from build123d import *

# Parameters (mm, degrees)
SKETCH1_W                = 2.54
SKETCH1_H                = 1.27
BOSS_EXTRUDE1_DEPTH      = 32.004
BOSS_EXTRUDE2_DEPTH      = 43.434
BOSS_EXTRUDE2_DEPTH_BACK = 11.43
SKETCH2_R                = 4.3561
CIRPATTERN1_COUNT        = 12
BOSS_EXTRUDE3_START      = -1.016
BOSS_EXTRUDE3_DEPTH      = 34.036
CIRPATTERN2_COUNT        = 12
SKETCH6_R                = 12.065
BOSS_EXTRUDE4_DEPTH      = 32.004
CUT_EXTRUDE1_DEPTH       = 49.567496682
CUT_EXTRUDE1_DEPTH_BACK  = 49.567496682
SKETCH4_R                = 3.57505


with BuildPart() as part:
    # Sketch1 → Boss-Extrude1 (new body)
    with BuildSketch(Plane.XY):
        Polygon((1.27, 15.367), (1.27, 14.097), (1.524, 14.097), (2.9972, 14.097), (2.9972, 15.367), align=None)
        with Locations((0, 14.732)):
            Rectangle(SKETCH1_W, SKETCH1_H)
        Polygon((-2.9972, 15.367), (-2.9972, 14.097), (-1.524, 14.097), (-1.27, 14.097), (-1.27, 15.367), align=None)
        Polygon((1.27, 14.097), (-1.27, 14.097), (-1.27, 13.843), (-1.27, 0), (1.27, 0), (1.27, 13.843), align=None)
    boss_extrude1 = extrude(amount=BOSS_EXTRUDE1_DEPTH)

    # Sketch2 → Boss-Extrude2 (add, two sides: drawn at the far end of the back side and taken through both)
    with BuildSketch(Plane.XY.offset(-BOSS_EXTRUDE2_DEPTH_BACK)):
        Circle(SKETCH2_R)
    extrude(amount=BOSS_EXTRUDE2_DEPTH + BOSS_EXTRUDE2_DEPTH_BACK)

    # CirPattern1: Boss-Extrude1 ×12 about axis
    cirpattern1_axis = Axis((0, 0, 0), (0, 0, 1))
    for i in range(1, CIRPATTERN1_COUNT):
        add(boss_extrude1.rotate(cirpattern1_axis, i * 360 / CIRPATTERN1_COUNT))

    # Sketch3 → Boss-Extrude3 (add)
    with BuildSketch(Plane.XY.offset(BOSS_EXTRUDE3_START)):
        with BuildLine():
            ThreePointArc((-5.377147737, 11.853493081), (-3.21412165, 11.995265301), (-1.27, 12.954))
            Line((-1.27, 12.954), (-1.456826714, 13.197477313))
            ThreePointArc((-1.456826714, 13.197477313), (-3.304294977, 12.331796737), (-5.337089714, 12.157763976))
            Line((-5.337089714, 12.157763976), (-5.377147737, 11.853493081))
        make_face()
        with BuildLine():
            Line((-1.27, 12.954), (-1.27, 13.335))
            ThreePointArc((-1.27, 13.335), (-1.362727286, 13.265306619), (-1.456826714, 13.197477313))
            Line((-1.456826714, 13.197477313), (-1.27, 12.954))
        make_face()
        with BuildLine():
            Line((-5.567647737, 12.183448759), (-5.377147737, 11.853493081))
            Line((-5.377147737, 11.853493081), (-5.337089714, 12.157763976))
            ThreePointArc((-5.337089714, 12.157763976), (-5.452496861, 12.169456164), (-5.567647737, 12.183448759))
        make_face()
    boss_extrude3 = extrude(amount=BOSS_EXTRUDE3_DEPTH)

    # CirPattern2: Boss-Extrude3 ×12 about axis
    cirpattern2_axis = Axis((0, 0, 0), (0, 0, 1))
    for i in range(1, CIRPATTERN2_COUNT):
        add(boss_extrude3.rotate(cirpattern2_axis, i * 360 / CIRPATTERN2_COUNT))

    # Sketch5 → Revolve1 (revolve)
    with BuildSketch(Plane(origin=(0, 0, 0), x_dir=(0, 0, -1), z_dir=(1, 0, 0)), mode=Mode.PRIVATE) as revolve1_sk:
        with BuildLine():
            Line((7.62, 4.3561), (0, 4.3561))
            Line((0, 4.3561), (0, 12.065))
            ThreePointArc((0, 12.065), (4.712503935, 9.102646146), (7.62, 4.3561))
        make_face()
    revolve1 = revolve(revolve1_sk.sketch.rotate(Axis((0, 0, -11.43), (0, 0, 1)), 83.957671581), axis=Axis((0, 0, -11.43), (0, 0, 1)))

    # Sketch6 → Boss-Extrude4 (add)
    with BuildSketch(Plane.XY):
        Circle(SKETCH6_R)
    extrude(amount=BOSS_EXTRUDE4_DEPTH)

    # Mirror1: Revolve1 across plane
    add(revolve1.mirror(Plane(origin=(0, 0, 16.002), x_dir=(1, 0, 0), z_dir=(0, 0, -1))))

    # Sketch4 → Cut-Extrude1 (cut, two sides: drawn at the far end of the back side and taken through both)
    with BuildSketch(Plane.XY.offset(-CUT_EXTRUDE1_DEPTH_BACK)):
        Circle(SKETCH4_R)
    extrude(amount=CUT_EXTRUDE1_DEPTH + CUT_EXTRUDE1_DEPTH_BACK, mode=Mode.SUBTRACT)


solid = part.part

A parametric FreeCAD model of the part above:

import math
import FreeCAD as App
import Part
import Sketcher
from FreeCAD import Vector
Q = App.Units.Quantity

doc = App.newDocument("Part")
body = doc.addObject("PartDesign::Body", "Body")

# Sketch on XY plane
sketch1 = body.newObject("Sketcher::SketchObject", "Sketch")
sketch1.AttachmentSupport = (doc.getObject("XY_Plane"), [""])
sketch1.MapMode = "FlatFace"
sketch1.addGeometry([
    Part.LineSegment(Vector(3, 14.1, 0), Vector(3, 15.4, 0)),  # 0
    Part.LineSegment(Vector(3, 15.4, 0), Vector(-3, 15.4, 0)),  # 1
    Part.LineSegment(Vector(-3, 15.4, 0), Vector(-3, 14.1, 0)),  # 2
    Part.LineSegment(Vector(-3, 14.1, 0), Vector(-1.3, 14.1, 0)),  # 3
    Part.LineSegment(Vector(-1.3, 14.1, 0), Vector(-1.3, 0, 0)),  # 4
    Part.LineSegment(Vector(-1.3, 0, 0), Vector(1.3, 0, 0)),  # 5
    Part.LineSegment(Vector(1.3, 0, 0), Vector(1.3, 14.1, 0)),  # 6
    Part.LineSegment(Vector(1.3, 14.1, 0), Vector(3, 14.1, 0)),  # 7
], False)
sketch1.addConstraint([
    Sketcher.Constraint("Coincident", 0, 2, 1, 1),
    Sketcher.Constraint("Coincident", 1, 2, 2, 1),
    Sketcher.Constraint("Coincident", 2, 2, 3, 1),
    Sketcher.Constraint("Coincident", 3, 2, 4, 1),
    Sketcher.Constraint("Coincident", 4, 2, 5, 1),
    Sketcher.Constraint("Coincident", 5, 2, 6, 1),
    Sketcher.Constraint("Coincident", 6, 2, 7, 1),
    Sketcher.Constraint("Coincident", 7, 2, 0, 1),
    Sketcher.Constraint("Vertical", 0),
    Sketcher.Constraint("Horizontal", 1),
    Sketcher.Constraint("Vertical", 2),
    Sketcher.Constraint("Horizontal", 3),
    Sketcher.Constraint("Vertical", 4),
    Sketcher.Constraint("Horizontal", 5),
    Sketcher.Constraint("Vertical", 6),
    Sketcher.Constraint("Horizontal", 7),
    Sketcher.Constraint("Symmetric", 4, 2, 5, 2, -1, 1),
    Sketcher.Constraint("Symmetric", 2, 2, 7, 2, -2),
    Sketcher.Constraint("DistanceX", 5, 1, 5, 2, Q("0.1 in")),
    Sketcher.Constraint("DistanceY", 0, 1, 0, 2, Q("0.05 in")),
    Sketcher.Constraint("DistanceX", 1, 2, 1, 1, Q("0.236 in")),
    Sketcher.Constraint("DistanceY", 4, 2, 4, 1, Q("0.555 in")),
])
pad1 = body.newObject("PartDesign::Pad", "Pad")
pad1.Profile = sketch1
pad1.Length = Q("1.26 in")

# Sketch on XY plane
sketch2 = body.newObject("Sketcher::SketchObject", "Sketch001")
sketch2.AttachmentSupport = (doc.getObject("XY_Plane"), [""])
sketch2.MapMode = "FlatFace"
sketch2.addGeometry(Part.Circle(Vector(0, 0, 0), Vector(0, 0, 1), 4.4), False)
sketch2.addConstraint([
    Sketcher.Constraint("Coincident", 0, 3, -1, 1),
    Sketcher.Constraint("Diameter", 0, Q("0.343 in")),
])
pad2 = body.newObject("PartDesign::Pad", "Pad001")
pad2.Profile = sketch2
pad2.Type = "TwoLengths"
pad2.Length = Q("1.71 in")
pad2.Length2 = Q("0.45 in")
doc.recompute()

polarpattern = body.newObject("PartDesign::PolarPattern", "PolarPattern")
polarpattern.Originals = [pad1]
polarpattern.Axis = (doc.getObject("Z_Axis"), [""])
polarpattern.Angle = 360
polarpattern.Occurrences = 12
body.Tip = polarpattern

# Sketch on XY plane
sketch3 = body.newObject("Sketcher::SketchObject", "Sketch002")
sketch3.AttachmentSupport = (doc.getObject("XY_Plane"), [""])
sketch3.MapMode = "FlatFace"
sketch3.AttachmentOffset = App.Placement(Vector(0, 0, -0.04 * 25.4), App.Rotation())
sketch3.addGeometry([
    Part.ArcOfCircle(Part.Circle(Vector(-4.65, 17.36, 0), Vector(0, 0, 1), 5.56), math.radians(-97), math.radians(-53)),  # 0
    Part.LineSegment(Vector(-1.27, 12.95, 0), Vector(-1.27, 13.34, 0)),  # 1
    Part.ArcOfCircle(Part.Circle(Vector(-4.81, 17.95, 0), Vector(0, 0, 1), 5.81), math.radians(-54.79), math.radians(-52.5)),  # 2
    Part.ArcOfCircle(Part.Circle(Vector(-4.81, 17.95, 0), Vector(0, 0, 1), 5.81), math.radians(-95), math.radians(-55)),  # 3
    Part.ArcOfCircle(Part.Circle(Vector(-4.81, 17.95, 0), Vector(0, 0, 1), 5.81), math.radians(-97.5), math.radians(-95.21)),  # 4
    Part.LineSegment(Vector(-5.57, 12.18, 0), Vector(-5.38, 11.85, 0)),  # 5
], False)
sketch3.addConstraint([
    Sketcher.Constraint("Coincident", 0, 2, 1, 1),
    Sketcher.Constraint("Coincident", 1, 2, 2, 2),
    Sketcher.Constraint("Tangent", 2, 1, 3, 2),
    Sketcher.Constraint("Tangent", 3, 1, 4, 2),
    Sketcher.Constraint("Coincident", 4, 1, 5, 1),
    Sketcher.Constraint("Coincident", 5, 2, 0, 1),
    Sketcher.Constraint("Vertical", 1),
    Sketcher.Constraint("Coincident", 4, 3, 2, 3),
    Sketcher.Constraint("Angle", 5, Q("-60 deg")),
    Sketcher.Constraint("DistanceY", 1, 1, 1, 2, Q("0.015 in")),
    Sketcher.Constraint("DistanceX", 0, 2, -1, 1, Q("0.05 in")),
    Sketcher.Constraint("DistanceY", -1, 1, 0, 2, Q("0.51 in")),
    Sketcher.Constraint("Distance", 5, Q("0.015 in")),
    Sketcher.Constraint("Radius", 3, Q("5.813228 mm")),
    Sketcher.Constraint("Radius", 0, Q("5.555548 mm")),
    Sketcher.Constraint("DistanceX", 2, 3, -1, 1, Q("4.808869 mm")),
    Sketcher.Constraint("DistanceX", 3, 1, -1, 1, Q("5.33709 mm")),
    Sketcher.Constraint("DistanceY", -1, 1, 4, 1, Q("12.183449 mm")),
    Sketcher.Constraint("DistanceX", 2, 3, 2, 1, Q("3.352042 mm")),
])
pad3 = body.newObject("PartDesign::Pad", "Pad002")
pad3.Profile = sketch3
pad3.Length = Q("1.34 in")
doc.recompute()

polarpattern2 = body.newObject("PartDesign::PolarPattern", "PolarPattern001")
polarpattern2.Originals = [pad3]
polarpattern2.Axis = (doc.getObject("Z_Axis"), [""])
polarpattern2.Angle = 360
polarpattern2.Occurrences = 12
body.Tip = polarpattern2

# Sketch on YZ plane
sketch4 = body.newObject("Sketcher::SketchObject", "Sketch003")
sketch4.AttachmentSupport = (doc.getObject("YZ_Plane"), [""])
sketch4.MapMode = "FlatFace"
sketch4.addGeometry([
    Part.LineSegment(Vector(4, 0, 0), Vector(4, -8, 0)),
    Part.ArcOfCircle(Part.Circle(Vector(1, 4, 0), Vector(0, 0, 1), 12), math.radians(-72), math.radians(-19)),
    Part.LineSegment(Vector(12, 0, 0), Vector(4, 0, 0)),
], False)
sketch4.addConstraint([
    Sketcher.Constraint("Coincident", 0, 2, 1, 1),
    Sketcher.Constraint("Coincident", 1, 2, 2, 1),
    Sketcher.Constraint("Coincident", 2, 2, 0, 1),
    Sketcher.Constraint("Vertical", 0),
    Sketcher.Constraint("Horizontal", 2),
    Sketcher.Constraint("PointOnObject", 1, 2, -1),
    Sketcher.Constraint("DistanceY", 0, 2, 0, 1, Q("0.3 in")),
    Sketcher.Constraint("DistanceX", 2, 2, 2, 1, Q("0.3035 in")),
    Sketcher.Constraint("DistanceX", -1, 1, 1, 2, Q("0.475 in")),
    Sketcher.Constraint("Radius", 1, Q("12.207782 mm")),
])
revolution = body.newObject("PartDesign::Revolution", "Revolution")
revolution.Profile = sketch4
revolution.ReferenceAxis = (sketch4, ["V_Axis"])
revolution.Angle = 360

# Sketch on XY plane
sketch5 = body.newObject("Sketcher::SketchObject", "Sketch004")
sketch5.AttachmentSupport = (doc.getObject("XY_Plane"), [""])
sketch5.MapMode = "FlatFace"
sketch5.addGeometry(Part.Circle(Vector(0, 0, 0), Vector(0, 0, 1), 12), False)
sketch5.addConstraint([
    Sketcher.Constraint("Coincident", 0, 3, -1, 1),
    Sketcher.Constraint("Diameter", 0, Q("0.95 in")),
])
pad4 = body.newObject("PartDesign::Pad", "Pad003")
pad4.Profile = sketch5
pad4.Length = Q("1.26 in")
doc.recompute()

datumplane = body.newObject("PartDesign::Plane", "DatumPlane")
datumplane.AttachmentSupport = (doc.getObject("XY_Plane"), [""])
datumplane.MapMode = "FlatFace"
datumplane.AttachmentOffset = App.Placement(Vector(0, 0, 0.63 * 25.4), App.Rotation())
mirrored = body.newObject("PartDesign::Mirrored", "Mirrored")
mirrored.Originals = [revolution]
mirrored.MirrorPlane = (datumplane, [""])
body.Tip = mirrored

# Sketch on XY plane
sketch6 = body.newObject("Sketcher::SketchObject", "Sketch005")
sketch6.AttachmentSupport = (doc.getObject("XY_Plane"), [""])
sketch6.MapMode = "FlatFace"
sketch6.addGeometry(Part.Circle(Vector(0, 0, 0), Vector(0, 0, 1), 3.6), False)
sketch6.addConstraint([
    Sketcher.Constraint("Coincident", 0, 3, -1, 1),
    Sketcher.Constraint("Diameter", 0, Q("0.2815 in")),
])
pocket1 = body.newObject("PartDesign::Pocket", "Pocket")
pocket1.Profile = sketch6
pocket1.Type = "ThroughAll"
pocket1.Midplane = True

doc.recompute()
